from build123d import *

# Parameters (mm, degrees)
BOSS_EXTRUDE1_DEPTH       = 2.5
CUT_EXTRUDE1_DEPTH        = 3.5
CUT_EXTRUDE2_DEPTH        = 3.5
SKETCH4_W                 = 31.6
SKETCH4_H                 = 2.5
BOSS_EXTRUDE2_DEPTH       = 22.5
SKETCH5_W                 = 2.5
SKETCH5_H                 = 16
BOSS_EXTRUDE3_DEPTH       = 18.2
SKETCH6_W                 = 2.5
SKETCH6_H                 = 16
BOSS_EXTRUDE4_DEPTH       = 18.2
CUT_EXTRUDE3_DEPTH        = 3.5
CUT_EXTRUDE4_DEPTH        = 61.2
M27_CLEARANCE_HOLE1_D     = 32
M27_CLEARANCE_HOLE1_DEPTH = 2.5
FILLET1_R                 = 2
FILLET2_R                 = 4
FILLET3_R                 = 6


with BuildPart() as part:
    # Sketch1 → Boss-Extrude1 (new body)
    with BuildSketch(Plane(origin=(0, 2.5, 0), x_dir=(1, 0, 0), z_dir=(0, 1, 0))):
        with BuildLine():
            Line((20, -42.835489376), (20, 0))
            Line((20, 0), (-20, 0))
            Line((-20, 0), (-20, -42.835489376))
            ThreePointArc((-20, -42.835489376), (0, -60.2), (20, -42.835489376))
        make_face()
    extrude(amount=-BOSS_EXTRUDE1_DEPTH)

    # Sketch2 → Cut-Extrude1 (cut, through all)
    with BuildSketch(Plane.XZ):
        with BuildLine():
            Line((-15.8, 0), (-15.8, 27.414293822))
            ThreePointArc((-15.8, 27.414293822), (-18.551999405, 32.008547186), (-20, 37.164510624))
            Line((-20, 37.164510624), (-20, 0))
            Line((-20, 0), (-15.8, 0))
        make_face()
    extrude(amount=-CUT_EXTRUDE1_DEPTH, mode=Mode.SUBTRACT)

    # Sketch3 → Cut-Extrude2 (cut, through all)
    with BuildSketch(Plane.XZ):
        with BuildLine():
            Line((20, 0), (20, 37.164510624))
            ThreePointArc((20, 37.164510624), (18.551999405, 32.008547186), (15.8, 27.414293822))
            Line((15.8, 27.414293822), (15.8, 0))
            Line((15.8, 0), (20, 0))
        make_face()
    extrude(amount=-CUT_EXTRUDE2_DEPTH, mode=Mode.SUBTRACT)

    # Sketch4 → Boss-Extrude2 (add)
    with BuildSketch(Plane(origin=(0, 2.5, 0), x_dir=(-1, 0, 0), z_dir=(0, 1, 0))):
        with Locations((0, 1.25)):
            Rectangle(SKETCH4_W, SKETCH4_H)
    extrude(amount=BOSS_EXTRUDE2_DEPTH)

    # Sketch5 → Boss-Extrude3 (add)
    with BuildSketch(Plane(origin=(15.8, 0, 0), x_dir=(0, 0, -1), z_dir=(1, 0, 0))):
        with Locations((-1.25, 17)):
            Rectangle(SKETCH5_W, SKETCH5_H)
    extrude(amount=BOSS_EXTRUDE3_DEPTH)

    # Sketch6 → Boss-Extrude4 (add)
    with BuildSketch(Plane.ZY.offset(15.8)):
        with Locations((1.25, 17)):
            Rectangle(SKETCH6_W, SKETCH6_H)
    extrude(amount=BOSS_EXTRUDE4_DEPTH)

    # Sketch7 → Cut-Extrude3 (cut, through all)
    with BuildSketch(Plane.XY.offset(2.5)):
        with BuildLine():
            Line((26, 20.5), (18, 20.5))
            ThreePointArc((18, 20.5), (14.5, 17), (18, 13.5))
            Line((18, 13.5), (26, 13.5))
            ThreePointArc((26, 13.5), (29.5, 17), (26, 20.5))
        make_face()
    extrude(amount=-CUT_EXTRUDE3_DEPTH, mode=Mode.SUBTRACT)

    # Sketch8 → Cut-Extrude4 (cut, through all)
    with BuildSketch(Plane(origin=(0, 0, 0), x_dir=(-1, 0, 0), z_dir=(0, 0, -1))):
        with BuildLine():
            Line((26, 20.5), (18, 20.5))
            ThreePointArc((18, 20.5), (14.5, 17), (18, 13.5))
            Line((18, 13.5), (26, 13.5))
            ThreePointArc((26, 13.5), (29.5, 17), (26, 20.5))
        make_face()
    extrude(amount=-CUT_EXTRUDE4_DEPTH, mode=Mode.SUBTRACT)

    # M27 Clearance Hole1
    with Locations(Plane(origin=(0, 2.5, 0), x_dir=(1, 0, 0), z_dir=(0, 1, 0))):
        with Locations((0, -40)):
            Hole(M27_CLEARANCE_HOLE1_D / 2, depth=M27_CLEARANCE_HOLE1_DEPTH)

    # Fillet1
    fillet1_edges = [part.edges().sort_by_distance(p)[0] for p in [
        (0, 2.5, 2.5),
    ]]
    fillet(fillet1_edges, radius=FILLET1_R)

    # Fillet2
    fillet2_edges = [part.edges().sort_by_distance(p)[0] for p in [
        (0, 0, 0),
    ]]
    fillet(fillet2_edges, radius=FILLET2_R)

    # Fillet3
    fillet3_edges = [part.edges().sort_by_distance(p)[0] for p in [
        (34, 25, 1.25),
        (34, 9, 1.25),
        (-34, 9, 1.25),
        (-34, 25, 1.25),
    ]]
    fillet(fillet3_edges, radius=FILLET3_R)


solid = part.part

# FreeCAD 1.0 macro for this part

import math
import FreeCAD as App
import Part
import Sketcher

V = App.Vector
Q = App.Units.Quantity


def edges_at(feature, points):
    """Names of the edges that pass closest to the given points."""
    edges = feature.Shape.Edges
    near = lambda p: min(range(len(edges)), key=lambda i: edges[i].distToShape(Part.Vertex(*p))[0])
    return sorted({f"Edge{near(p) + 1}" for p in points})

doc = App.newDocument("Part")
params = doc.addObject("Spreadsheet::Sheet", "Params")
for row, (alias, value) in enumerate([
    ("sketch1_radius", "20.2 mm"),
    ("sketch1_width", "40 mm"),
    ("pad1_length", "2.5 mm"),
    ("sketch2_radius", "20.2 mm"),
    ("sketch2_width", "4.2 mm"),
    ("sketch3_radius", "20.2 mm"),
    ("sketch3_width", "4.2 mm"),
    ("sketch4_width", "31.6 mm"),
    ("sketch4_height", "2.5 mm"),
    ("pad2_length", "22.5 mm"),
    ("sketch5_width", "16 mm"),
    ("sketch5_height", "2.5 mm"),
    ("pad3_length", "18.2 mm"),
    ("sketch6_width", "16 mm"),
    ("sketch6_height", "2.5 mm"),
    ("pad4_length", "18.2 mm"),
    ("sketch7_radius", "3.5 mm"),
    ("sketch7_width", "8 mm"),
    ("sketch8_radius", "3.5 mm"),
    ("sketch8_width", "8 mm"),
    ("sketch9_diameter", "32 mm"),
    ("hole_diameter", "32 mm"),
    ("hole_depth", "2.5 mm"),
    ("fillet_radius", "2 mm"),
    ("fillet2_radius", "4 mm"),
    ("fillet3_radius", "6 mm"),
], start=1):
    params.set(f"A{row}", alias)
    params.set(f"B{row}", "=" + value)
    params.setAlias(f"B{row}", alias)

body = doc.addObject("PartDesign::Body", "Body")

# Sketch on XZ plane
sketch1 = body.newObject("Sketcher::SketchObject", "Sketch")
sketch1.AttachmentSupport = (doc.getObject("XZ_Plane"), [""])
sketch1.MapMode = "FlatFace"
sketch1.AttachmentOffset = App.Placement(V(0, 0, -2.5), App.Rotation())
sketch1.addGeometry(Part.LineSegment(V(20, 43, 0), V(20, 0, 0)), False)
sketch1.addGeometry(Part.LineSegment(V(20, 0, 0), V(-20, 0, 0)), False)
sketch1.addGeometry(Part.LineSegment(V(-20, 0, 0), V(-20, 43, 0)), False)
sketch1.addGeometry(Part.ArcOfCircle(Part.Circle(V(0, 40, 0), V(0, 0, 1), 20), math.radians(8), math.radians(172)), False)
sketch1.addConstraint(Sketcher.Constraint("Coincident", 0, 2, 1, 1))
sketch1.addConstraint(Sketcher.Constraint("Coincident", 1, 2, 2, 1))
sketch1.addConstraint(Sketcher.Constraint("Coincident", 2, 2, 3, 2))
sketch1.addConstraint(Sketcher.Constraint("Coincident", 3, 1, 0, 1))
sketch1.addConstraint(Sketcher.Constraint("Vertical", 0))
sketch1.addConstraint(Sketcher.Constraint("Horizontal", 1))
sketch1.addConstraint(Sketcher.Constraint("Vertical", 2))
sketch1.addConstraint(Sketcher.Constraint("Symmetric", 0, 2, 1, 2, -1, 1))
sketch1.addConstraint(Sketcher.Constraint("PointOnObject", 3, 3, -2))
sketch1.addConstraint(Sketcher.Constraint("Radius", 3, Q("20.2 mm")))
sketch1.addConstraint(Sketcher.Constraint("DistanceX", 1, 2, 1, 1, Q("40 mm")))
sketch1.addConstraint(Sketcher.Constraint("DistanceY", -1, 1, 3, 3, Q("40 mm")))
sketch1.setExpression("Constraints[9]", "Params.sketch1_radius")
sketch1.setExpression("Constraints[10]", "Params.sketch1_width")
pad1 = body.newObject("PartDesign::Pad", "Pad")
pad1.Profile = sketch1
pad1.setExpression("Length", "Params.pad1_length")

# Sketch on XZ plane
sketch2 = body.newObject("Sketcher::SketchObject", "Sketch001")
sketch2.AttachmentSupport = (doc.getObject("XZ_Plane"), [""])
sketch2.MapMode = "FlatFace"
sketch2.addGeometry(Part.LineSegment(V(-15.8, 0, 0), V(-15.8, 27.4, 0)), False)
sketch2.addGeometry(Part.ArcOfCircle(Part.Circle(V(0, 40, 0), V(0, 0, 1), 20.2), math.radians(-172), math.radians(-141)), False)
sketch2.addGeometry(Part.LineSegment(V(-20, 37.2, 0), V(-20, 0, 0)), False)
sketch2.addGeometry(Part.LineSegment(V(-20, 0, 0), V(-15.8, 0, 0)), False)
sketch2.addConstraint(Sketcher.Constraint("Coincident", 0, 2, 1, 2))
sketch2.addConstraint(Sketcher.Constraint("Coincident", 1, 1, 2, 1))
sketch2.addConstraint(Sketcher.Constraint("Coincident", 2, 2, 3, 1))
sketch2.addConstraint(Sketcher.Constraint("Coincident", 3, 2, 0, 1))
sketch2.addConstraint(Sketcher.Constraint("Vertical", 0))
sketch2.addConstraint(Sketcher.Constraint("Vertical", 2))
sketch2.addConstraint(Sketcher.Constraint("Horizontal", 3))
sketch2.addConstraint(Sketcher.Constraint("PointOnObject", 1, 3, -2))
sketch2.addConstraint(Sketcher.Constraint("PointOnObject", 2, 2, -1))
sketch2.addConstraint(Sketcher.Constraint("Radius", 1, Q("20.2 mm")))
sketch2.addConstraint(Sketcher.Constraint("DistanceX", 3, 1, 3, 2, Q("4.2 mm")))
sketch2.addConstraint(Sketcher.Constraint("DistanceY", -1, 1, 1, 3, Q("40 mm")))
sketch2.addConstraint(Sketcher.Constraint("DistanceX", 1, 1, -1, 1, Q("20 mm")))
sketch2.setExpression("Constraints[9]", "Params.sketch2_radius")
sketch2.setExpression("Constraints[10]", "Params.sketch2_width")
pocket1 = body.newObject("PartDesign::Pocket", "Pocket")
pocket1.Profile = sketch2
pocket1.Type = "ThroughAll"

# Sketch on XZ plane
sketch3 = body.newObject("Sketcher::SketchObject", "Sketch002")
sketch3.AttachmentSupport = (doc.getObject("XZ_Plane"), [""])
sketch3.MapMode = "FlatFace"
sketch3.addGeometry(Part.LineSegment(V(20, 0, 0), V(20, 37.2, 0)), False)
sketch3.addGeometry(Part.ArcOfCircle(Part.Circle(V(0, 40, 0), V(0, 0, 1), 20.2), math.radians(-39), math.radians(-8)), False)
sketch3.addGeometry(Part.LineSegment(V(15.8, 27.4, 0), V(15.8, 0, 0)), False)
sketch3.addGeometry(Part.LineSegment(V(15.8, 0, 0), V(20, 0, 0)), False)
sketch3.addConstraint(Sketcher.Constraint("Coincident", 0, 2, 1, 2))
sketch3.addConstraint(Sketcher.Constraint("Coincident", 1, 1, 2, 1))
sketch3.addConstraint(Sketcher.Constraint("Coincident", 2, 2, 3, 1))
sketch3.addConstraint(Sketcher.Constraint("Coincident", 3, 2, 0, 1))
sketch3.addConstraint(Sketcher.Constraint("Vertical", 0))
sketch3.addConstraint(Sketcher.Constraint("Vertical", 2))
sketch3.addConstraint(Sketcher.Constraint("Horizontal", 3))
sketch3.addConstraint(Sketcher.Constraint("PointOnObject", 1, 3, -2))
sketch3.addConstraint(Sketcher.Constraint("PointOnObject", 2, 2, -1))
sketch3.addConstraint(Sketcher.Constraint("Radius", 1, Q("20.2 mm")))
sketch3.addConstraint(Sketcher.Constraint("DistanceX", 3, 1, 3, 2, Q("4.2 mm")))
sketch3.addConstraint(Sketcher.Constraint("DistanceY", -1, 1, 1, 3, Q("40 mm")))
sketch3.addConstraint(Sketcher.Constraint("DistanceX", -1, 1, 0, 2, Q("20 mm")))
sketch3.setExpression("Constraints[9]", "Params.sketch3_radius")
sketch3.setExpression("Constraints[10]", "Params.sketch3_width")
pocket2 = body.newObject("PartDesign::Pocket", "Pocket001")
pocket2.Profile = sketch3
pocket2.Type = "ThroughAll"

# Sketch on XZ plane
sketch4 = body.newObject("Sketcher::SketchObject", "Sketch003")
sketch4.AttachmentSupport = (doc.getObject("XZ_Plane"), [""])
sketch4.MapMode = "FlatFace"
sketch4.AttachmentOffset = App.Placement(V(0, 0, -2.5), App.Rotation())
sketch4.addGeometry(Part.LineSegment(V(15.8, 2.5, 0), V(15.8, 0, 0)), False)
sketch4.addGeometry(Part.LineSegment(V(15.8, 0, 0), V(-15.8, 0, 0)), False)
sketch4.addGeometry(Part.LineSegment(V(-15.8, 0, 0), V(-15.8, 2.5, 0)), False)
sketch4.addGeometry(Part.LineSegment(V(-15.8, 2.5, 0), V(15.8, 2.5, 0)), False)
sketch4.addConstraint(Sketcher.Constraint("Coincident", 0, 2, 1, 1))
sketch4.addConstraint(Sketcher.Constraint("Coincident", 1, 2, 2, 1))
sketch4.addConstraint(Sketcher.Constraint("Coincident", 2, 2, 3, 1))
sketch4.addConstraint(Sketcher.Constraint("Coincident", 3, 2, 0, 1))
sketch4.addConstraint(Sketcher.Constraint("Vertical", 0))
sketch4.addConstraint(Sketcher.Constraint("Horizontal", 1))
sketch4.addConstraint(Sketcher.Constraint("Vertical", 2))
sketch4.addConstraint(Sketcher.Constraint("Horizontal", 3))
sketch4.addConstraint(Sketcher.Constraint("Symmetric", 0, 2, 1, 2, -1, 1))
sketch4.addConstraint(Sketcher.Constraint("DistanceX", 1, 2, 1, 1, Q("31.6 mm")))
sketch4.addConstraint(Sketcher.Constraint("DistanceY", 0, 2, 0, 1, Q("2.5 mm")))
sketch4.setExpression("Constraints[9]", "Params.sketch4_width")
sketch4.setExpression("Constraints[10]", "Params.sketch4_height")
pad2 = body.newObject("PartDesign::Pad", "Pad001")
pad2.Profile = sketch4
pad2.setExpression("Length", "Params.pad2_length")
pad2.Reversed = True

# Sketch on YZ plane
sketch5 = body.newObject("Sketcher::SketchObject", "Sketch004")
sketch5.AttachmentSupport = (doc.getObject("YZ_Plane"), [""])
sketch5.MapMode = "FlatFace"
sketch5.AttachmentOffset = App.Placement(V(0, 0, 15.8), App.Rotation())
sketch5.addGeometry(Part.LineSegment(V(25, 2.5, 0), V(9, 2.5, 0)), False)
sketch5.addGeometry(Part.LineSegment(V(9, 2.5, 0), V(9, 0, 0)), False)
sketch5.addGeometry(Part.LineSegment(V(9, 0, 0), V(25, 0, 0)), False)
sketch5.addGeometry(Part.LineSegment(V(25, 0, 0), V(25, 2.5, 0)), False)
sketch5.addConstraint(Sketcher.Constraint("Coincident", 0, 2, 1, 1))
sketch5.addConstraint(Sketcher.Constraint("Coincident", 1, 2, 2, 1))
sketch5.addConstraint(Sketcher.Constraint("Coincident", 2, 2, 3, 1))
sketch5.addConstraint(Sketcher.Constraint("Coincident", 3, 2, 0, 1))
sketch5.addConstraint(Sketcher.Constraint("Horizontal", 0))
sketch5.addConstraint(Sketcher.Constraint("Vertical", 1))
sketch5.addConstraint(Sketcher.Constraint("Horizontal", 2))
sketch5.addConstraint(Sketcher.Constraint("Vertical", 3))
sketch5.addConstraint(Sketcher.Constraint("PointOnObject", 1, 2, -1))
sketch5.addConstraint(Sketcher.Constraint("DistanceX", 0, 2, 0, 1, Q("16 mm")))
sketch5.addConstraint(Sketcher.Constraint("DistanceY", 1, 2, 1, 1, Q("2.5 mm")))
sketch5.addConstraint(Sketcher.Constraint("DistanceX", -1, 1, 0, 2, Q("9 mm")))
sketch5.setExpression("Constraints[9]", "Params.sketch5_width")
sketch5.setExpression("Constraints[10]", "Params.sketch5_height")
pad3 = body.newObject("PartDesign::Pad", "Pad002")
pad3.Profile = sketch5
pad3.setExpression("Length", "Params.pad3_length")

# Sketch on YZ plane
sketch6 = body.newObject("Sketcher::SketchObject", "Sketch005")
sketch6.AttachmentSupport = (doc.getObject("YZ_Plane"), [""])
sketch6.MapMode = "FlatFace"
sketch6.AttachmentOffset = App.Placement(V(0, 0, -15.8), App.Rotation())
sketch6.addGeometry(Part.LineSegment(V(25, 0, 0), V(9, 0, 0)), False)
sketch6.addGeometry(Part.LineSegment(V(9, 0, 0), V(9, 2.5, 0)), False)
sketch6.addGeometry(Part.LineSegment(V(9, 2.5, 0), V(25, 2.5, 0)), False)
sketch6.addGeometry(Part.LineSegment(V(25, 2.5, 0), V(25, 0, 0)), False)
sketch6.addConstraint(Sketcher.Constraint("Coincident", 0, 2, 1, 1))
sketch6.addConstraint(Sketcher.Constraint("Coincident", 1, 2, 2, 1))
sketch6.addConstraint(Sketcher.Constraint("Coincident", 2, 2, 3, 1))
sketch6.addConstraint(Sketcher.Constraint("Coincident", 3, 2, 0, 1))
sketch6.addConstraint(Sketcher.Constraint("Horizontal", 0))
sketch6.addConstraint(Sketcher.Constraint("Vertical", 1))
sketch6.addConstraint(Sketcher.Constraint("Horizontal", 2))
sketch6.addConstraint(Sketcher.Constraint("Vertical", 3))
sketch6.addConstraint(Sketcher.Constraint("PointOnObject", 0, 2, -1))
sketch6.addConstraint(Sketcher.Constraint("DistanceX", 0, 2, 0, 1, Q("16 mm")))
sketch6.addConstraint(Sketcher.Constraint("DistanceY", 1, 1, 1, 2, Q("2.5 mm")))
sketch6.addConstraint(Sketcher.Constraint("DistanceX", -1, 1, 0, 2, Q("9 mm")))
sketch6.setExpression("Constraints[9]", "Params.sketch6_width")
sketch6.setExpression("Constraints[10]", "Params.sketch6_height")
pad4 = body.newObject("PartDesign::Pad", "Pad003")
pad4.Profile = sketch6
pad4.setExpression("Length", "Params.pad4_length")
pad4.Reversed = True

# Sketch on XY plane
sketch7 = body.newObject("Sketcher::SketchObject", "Sketch006")
sketch7.AttachmentSupport = (doc.getObject("XY_Plane"), [""])
sketch7.MapMode = "FlatFace"
sketch7.AttachmentOffset = App.Placement(V(0, 0, 2.5), App.Rotation())
sketch7.addGeometry(Part.LineSegment(V(26, 20.5, 0), V(18, 20.5, 0)), False)
sketch7.addGeometry(Part.ArcOfCircle(Part.Circle(V(18, 17, 0), V(0, 0, 1), 3.5), math.radians(90), math.radians(270)), False)
sketch7.addGeometry(Part.LineSegment(V(18, 13.5, 0), V(26, 13.5, 0)), False)
sketch7.addGeometry(Part.ArcOfCircle(Part.Circle(V(26, 17, 0), V(0, 0, 1), 3.5), math.radians(-90), math.radians(90)), False)
sketch7.addConstraint(Sketcher.Constraint("Tangent", 0, 2, 1, 1))
sketch7.addConstraint(Sketcher.Constraint("Tangent", 1, 2, 2, 1))
sketch7.addConstraint(Sketcher.Constraint("Tangent", 2, 2, 3, 1))
sketch7.addConstraint(Sketcher.Constraint("Tangent", 3, 2, 0, 1))
sketch7.addConstraint(Sketcher.Constraint("Horizontal", 0))
sketch7.addConstraint(Sketcher.Constraint("Horizontal", 2))
sketch7.addConstraint(Sketcher.Constraint("Radius", 1, Q("3.5 mm")))
sketch7.addConstraint(Sketcher.Constraint("DistanceX", 0, 2, 0, 1, Q("8 mm")))
sketch7.addConstraint(Sketcher.Constraint("DistanceX", -1, 1, 1, 3, Q("18 mm")))
sketch7.addConstraint(Sketcher.Constraint("DistanceY", -1, 1, 1, 3, Q("17 mm")))
sketch7.setExpression("Constraints[6]", "Params.sketch7_radius")
sketch7.setExpression("Constraints[7]", "Params.sketch7_width")
pocket3 = body.newObject("PartDesign::Pocket", "Pocket002")
pocket3.Profile = sketch7
pocket3.Type = "ThroughAll"

# Sketch on XY plane
sketch8 = body.newObject("Sketcher::SketchObject", "Sketch007")
sketch8.AttachmentSupport = (doc.getObject("XY_Plane"), [""])
sketch8.MapMode = "FlatFace"
sketch8.addGeometry(Part.LineSegment(V(-26, 20.5, 0), V(-18, 20.5, 0)), False)
sketch8.addGeometry(Part.ArcOfCircle(Part.Circle(V(-18, 17, 0), V(0, 0, 1), 3.5), math.radians(-90), math.radians(90)), False)
sketch8.addGeometry(Part.LineSegment(V(-18, 13.5, 0), V(-26, 13.5, 0)), False)
sketch8.addGeometry(Part.ArcOfCircle(Part.Circle(V(-26, 17, 0), V(0, 0, 1), 3.5), math.radians(90), math.radians(270)), False)
sketch8.addConstraint(Sketcher.Constraint("Tangent", 0, 2, 1, 2))
sketch8.addConstraint(Sketcher.Constraint("Tangent", 1, 1, 2, 1))
sketch8.addConstraint(Sketcher.Constraint("Tangent", 2, 2, 3, 2))
sketch8.addConstraint(Sketcher.Constraint("Tangent", 3, 1, 0, 1))
sketch8.addConstraint(Sketcher.Constraint("Horizontal", 0))
sketch8.addConstraint(Sketcher.Constraint("Horizontal", 2))
sketch8.addConstraint(Sketcher.Constraint("Radius", 1, Q("3.5 mm")))
sketch8.addConstraint(Sketcher.Constraint("DistanceX", 0, 1, 0, 2, Q("8 mm")))
sketch8.addConstraint(Sketcher.Constraint("DistanceX", 1, 3, -1, 1, Q("18 mm")))
sketch8.addConstraint(Sketcher.Constraint("DistanceY", -1, 1, 1, 3, Q("17 mm")))
sketch8.setExpression("Constraints[6]", "Params.sketch8_radius")
sketch8.setExpression("Constraints[7]", "Params.sketch8_width")
pocket4 = body.newObject("PartDesign::Pocket", "Pocket003")
pocket4.Profile = sketch8
pocket4.Type = "ThroughAll"
pocket4.Reversed = True

# Sketch on XZ plane
sketch9 = body.newObject("Sketcher::SketchObject", "Sketch008")
sketch9.AttachmentSupport = (doc.getObject("XZ_Plane"), [""])
sketch9.MapMode = "FlatFace"
sketch9.AttachmentOffset = App.Placement(V(0, 0, -2.5), App.Rotation())
sketch9.addGeometry(Part.Circle(V(0, 40, 0), V(0, 0, 1), 16), False)
sketch9.addConstraint(Sketcher.Constraint("PointOnObject", 0, 3, -2))
sketch9.addConstraint(Sketcher.Constraint("Diameter", 0, Q("32 mm")))
sketch9.addConstraint(Sketcher.Constraint("DistanceY", -1, 1, 0, 3, Q("40 mm")))
sketch9.setExpression("Constraints[1]", "Params.sketch9_diameter")
doc.recompute()
hole = body.newObject("PartDesign::Hole", "Hole")
hole.Profile = sketch9
hole.ThreadType = "None"
hole.setExpression("Diameter", "Params.hole_diameter")
hole.DepthType = "Dimension"
hole.setExpression("Depth", "Params.hole_depth")
hole.DrillPoint = "Flat"
hole.Reversed = True
doc.recompute()

fillet = body.newObject("PartDesign::Fillet", "Fillet")
fillet.Base = (hole, edges_at(hole, [(0, 2.5, 2.5)]))
fillet.setExpression("Radius", "Params.fillet_radius")
doc.recompute()

fillet2 = body.newObject("PartDesign::Fillet", "Fillet001")
fillet2.Base = (fillet, edges_at(fillet, [(0, 0, 0)]))
fillet2.setExpression("Radius", "Params.fillet2_radius")
doc.recompute()

fillet3 = body.newObject("PartDesign::Fillet", "Fillet002")
fillet3.Base = (fillet2, edges_at(fillet2, [
    (34, 25, 1.25),
    (34, 9, 1.25),
    (-34, 9, 1.25),
    (-34, 25, 1.25),
]))
fillet3.setExpression("Radius", "Params.fillet3_radius")

doc.recompute()
